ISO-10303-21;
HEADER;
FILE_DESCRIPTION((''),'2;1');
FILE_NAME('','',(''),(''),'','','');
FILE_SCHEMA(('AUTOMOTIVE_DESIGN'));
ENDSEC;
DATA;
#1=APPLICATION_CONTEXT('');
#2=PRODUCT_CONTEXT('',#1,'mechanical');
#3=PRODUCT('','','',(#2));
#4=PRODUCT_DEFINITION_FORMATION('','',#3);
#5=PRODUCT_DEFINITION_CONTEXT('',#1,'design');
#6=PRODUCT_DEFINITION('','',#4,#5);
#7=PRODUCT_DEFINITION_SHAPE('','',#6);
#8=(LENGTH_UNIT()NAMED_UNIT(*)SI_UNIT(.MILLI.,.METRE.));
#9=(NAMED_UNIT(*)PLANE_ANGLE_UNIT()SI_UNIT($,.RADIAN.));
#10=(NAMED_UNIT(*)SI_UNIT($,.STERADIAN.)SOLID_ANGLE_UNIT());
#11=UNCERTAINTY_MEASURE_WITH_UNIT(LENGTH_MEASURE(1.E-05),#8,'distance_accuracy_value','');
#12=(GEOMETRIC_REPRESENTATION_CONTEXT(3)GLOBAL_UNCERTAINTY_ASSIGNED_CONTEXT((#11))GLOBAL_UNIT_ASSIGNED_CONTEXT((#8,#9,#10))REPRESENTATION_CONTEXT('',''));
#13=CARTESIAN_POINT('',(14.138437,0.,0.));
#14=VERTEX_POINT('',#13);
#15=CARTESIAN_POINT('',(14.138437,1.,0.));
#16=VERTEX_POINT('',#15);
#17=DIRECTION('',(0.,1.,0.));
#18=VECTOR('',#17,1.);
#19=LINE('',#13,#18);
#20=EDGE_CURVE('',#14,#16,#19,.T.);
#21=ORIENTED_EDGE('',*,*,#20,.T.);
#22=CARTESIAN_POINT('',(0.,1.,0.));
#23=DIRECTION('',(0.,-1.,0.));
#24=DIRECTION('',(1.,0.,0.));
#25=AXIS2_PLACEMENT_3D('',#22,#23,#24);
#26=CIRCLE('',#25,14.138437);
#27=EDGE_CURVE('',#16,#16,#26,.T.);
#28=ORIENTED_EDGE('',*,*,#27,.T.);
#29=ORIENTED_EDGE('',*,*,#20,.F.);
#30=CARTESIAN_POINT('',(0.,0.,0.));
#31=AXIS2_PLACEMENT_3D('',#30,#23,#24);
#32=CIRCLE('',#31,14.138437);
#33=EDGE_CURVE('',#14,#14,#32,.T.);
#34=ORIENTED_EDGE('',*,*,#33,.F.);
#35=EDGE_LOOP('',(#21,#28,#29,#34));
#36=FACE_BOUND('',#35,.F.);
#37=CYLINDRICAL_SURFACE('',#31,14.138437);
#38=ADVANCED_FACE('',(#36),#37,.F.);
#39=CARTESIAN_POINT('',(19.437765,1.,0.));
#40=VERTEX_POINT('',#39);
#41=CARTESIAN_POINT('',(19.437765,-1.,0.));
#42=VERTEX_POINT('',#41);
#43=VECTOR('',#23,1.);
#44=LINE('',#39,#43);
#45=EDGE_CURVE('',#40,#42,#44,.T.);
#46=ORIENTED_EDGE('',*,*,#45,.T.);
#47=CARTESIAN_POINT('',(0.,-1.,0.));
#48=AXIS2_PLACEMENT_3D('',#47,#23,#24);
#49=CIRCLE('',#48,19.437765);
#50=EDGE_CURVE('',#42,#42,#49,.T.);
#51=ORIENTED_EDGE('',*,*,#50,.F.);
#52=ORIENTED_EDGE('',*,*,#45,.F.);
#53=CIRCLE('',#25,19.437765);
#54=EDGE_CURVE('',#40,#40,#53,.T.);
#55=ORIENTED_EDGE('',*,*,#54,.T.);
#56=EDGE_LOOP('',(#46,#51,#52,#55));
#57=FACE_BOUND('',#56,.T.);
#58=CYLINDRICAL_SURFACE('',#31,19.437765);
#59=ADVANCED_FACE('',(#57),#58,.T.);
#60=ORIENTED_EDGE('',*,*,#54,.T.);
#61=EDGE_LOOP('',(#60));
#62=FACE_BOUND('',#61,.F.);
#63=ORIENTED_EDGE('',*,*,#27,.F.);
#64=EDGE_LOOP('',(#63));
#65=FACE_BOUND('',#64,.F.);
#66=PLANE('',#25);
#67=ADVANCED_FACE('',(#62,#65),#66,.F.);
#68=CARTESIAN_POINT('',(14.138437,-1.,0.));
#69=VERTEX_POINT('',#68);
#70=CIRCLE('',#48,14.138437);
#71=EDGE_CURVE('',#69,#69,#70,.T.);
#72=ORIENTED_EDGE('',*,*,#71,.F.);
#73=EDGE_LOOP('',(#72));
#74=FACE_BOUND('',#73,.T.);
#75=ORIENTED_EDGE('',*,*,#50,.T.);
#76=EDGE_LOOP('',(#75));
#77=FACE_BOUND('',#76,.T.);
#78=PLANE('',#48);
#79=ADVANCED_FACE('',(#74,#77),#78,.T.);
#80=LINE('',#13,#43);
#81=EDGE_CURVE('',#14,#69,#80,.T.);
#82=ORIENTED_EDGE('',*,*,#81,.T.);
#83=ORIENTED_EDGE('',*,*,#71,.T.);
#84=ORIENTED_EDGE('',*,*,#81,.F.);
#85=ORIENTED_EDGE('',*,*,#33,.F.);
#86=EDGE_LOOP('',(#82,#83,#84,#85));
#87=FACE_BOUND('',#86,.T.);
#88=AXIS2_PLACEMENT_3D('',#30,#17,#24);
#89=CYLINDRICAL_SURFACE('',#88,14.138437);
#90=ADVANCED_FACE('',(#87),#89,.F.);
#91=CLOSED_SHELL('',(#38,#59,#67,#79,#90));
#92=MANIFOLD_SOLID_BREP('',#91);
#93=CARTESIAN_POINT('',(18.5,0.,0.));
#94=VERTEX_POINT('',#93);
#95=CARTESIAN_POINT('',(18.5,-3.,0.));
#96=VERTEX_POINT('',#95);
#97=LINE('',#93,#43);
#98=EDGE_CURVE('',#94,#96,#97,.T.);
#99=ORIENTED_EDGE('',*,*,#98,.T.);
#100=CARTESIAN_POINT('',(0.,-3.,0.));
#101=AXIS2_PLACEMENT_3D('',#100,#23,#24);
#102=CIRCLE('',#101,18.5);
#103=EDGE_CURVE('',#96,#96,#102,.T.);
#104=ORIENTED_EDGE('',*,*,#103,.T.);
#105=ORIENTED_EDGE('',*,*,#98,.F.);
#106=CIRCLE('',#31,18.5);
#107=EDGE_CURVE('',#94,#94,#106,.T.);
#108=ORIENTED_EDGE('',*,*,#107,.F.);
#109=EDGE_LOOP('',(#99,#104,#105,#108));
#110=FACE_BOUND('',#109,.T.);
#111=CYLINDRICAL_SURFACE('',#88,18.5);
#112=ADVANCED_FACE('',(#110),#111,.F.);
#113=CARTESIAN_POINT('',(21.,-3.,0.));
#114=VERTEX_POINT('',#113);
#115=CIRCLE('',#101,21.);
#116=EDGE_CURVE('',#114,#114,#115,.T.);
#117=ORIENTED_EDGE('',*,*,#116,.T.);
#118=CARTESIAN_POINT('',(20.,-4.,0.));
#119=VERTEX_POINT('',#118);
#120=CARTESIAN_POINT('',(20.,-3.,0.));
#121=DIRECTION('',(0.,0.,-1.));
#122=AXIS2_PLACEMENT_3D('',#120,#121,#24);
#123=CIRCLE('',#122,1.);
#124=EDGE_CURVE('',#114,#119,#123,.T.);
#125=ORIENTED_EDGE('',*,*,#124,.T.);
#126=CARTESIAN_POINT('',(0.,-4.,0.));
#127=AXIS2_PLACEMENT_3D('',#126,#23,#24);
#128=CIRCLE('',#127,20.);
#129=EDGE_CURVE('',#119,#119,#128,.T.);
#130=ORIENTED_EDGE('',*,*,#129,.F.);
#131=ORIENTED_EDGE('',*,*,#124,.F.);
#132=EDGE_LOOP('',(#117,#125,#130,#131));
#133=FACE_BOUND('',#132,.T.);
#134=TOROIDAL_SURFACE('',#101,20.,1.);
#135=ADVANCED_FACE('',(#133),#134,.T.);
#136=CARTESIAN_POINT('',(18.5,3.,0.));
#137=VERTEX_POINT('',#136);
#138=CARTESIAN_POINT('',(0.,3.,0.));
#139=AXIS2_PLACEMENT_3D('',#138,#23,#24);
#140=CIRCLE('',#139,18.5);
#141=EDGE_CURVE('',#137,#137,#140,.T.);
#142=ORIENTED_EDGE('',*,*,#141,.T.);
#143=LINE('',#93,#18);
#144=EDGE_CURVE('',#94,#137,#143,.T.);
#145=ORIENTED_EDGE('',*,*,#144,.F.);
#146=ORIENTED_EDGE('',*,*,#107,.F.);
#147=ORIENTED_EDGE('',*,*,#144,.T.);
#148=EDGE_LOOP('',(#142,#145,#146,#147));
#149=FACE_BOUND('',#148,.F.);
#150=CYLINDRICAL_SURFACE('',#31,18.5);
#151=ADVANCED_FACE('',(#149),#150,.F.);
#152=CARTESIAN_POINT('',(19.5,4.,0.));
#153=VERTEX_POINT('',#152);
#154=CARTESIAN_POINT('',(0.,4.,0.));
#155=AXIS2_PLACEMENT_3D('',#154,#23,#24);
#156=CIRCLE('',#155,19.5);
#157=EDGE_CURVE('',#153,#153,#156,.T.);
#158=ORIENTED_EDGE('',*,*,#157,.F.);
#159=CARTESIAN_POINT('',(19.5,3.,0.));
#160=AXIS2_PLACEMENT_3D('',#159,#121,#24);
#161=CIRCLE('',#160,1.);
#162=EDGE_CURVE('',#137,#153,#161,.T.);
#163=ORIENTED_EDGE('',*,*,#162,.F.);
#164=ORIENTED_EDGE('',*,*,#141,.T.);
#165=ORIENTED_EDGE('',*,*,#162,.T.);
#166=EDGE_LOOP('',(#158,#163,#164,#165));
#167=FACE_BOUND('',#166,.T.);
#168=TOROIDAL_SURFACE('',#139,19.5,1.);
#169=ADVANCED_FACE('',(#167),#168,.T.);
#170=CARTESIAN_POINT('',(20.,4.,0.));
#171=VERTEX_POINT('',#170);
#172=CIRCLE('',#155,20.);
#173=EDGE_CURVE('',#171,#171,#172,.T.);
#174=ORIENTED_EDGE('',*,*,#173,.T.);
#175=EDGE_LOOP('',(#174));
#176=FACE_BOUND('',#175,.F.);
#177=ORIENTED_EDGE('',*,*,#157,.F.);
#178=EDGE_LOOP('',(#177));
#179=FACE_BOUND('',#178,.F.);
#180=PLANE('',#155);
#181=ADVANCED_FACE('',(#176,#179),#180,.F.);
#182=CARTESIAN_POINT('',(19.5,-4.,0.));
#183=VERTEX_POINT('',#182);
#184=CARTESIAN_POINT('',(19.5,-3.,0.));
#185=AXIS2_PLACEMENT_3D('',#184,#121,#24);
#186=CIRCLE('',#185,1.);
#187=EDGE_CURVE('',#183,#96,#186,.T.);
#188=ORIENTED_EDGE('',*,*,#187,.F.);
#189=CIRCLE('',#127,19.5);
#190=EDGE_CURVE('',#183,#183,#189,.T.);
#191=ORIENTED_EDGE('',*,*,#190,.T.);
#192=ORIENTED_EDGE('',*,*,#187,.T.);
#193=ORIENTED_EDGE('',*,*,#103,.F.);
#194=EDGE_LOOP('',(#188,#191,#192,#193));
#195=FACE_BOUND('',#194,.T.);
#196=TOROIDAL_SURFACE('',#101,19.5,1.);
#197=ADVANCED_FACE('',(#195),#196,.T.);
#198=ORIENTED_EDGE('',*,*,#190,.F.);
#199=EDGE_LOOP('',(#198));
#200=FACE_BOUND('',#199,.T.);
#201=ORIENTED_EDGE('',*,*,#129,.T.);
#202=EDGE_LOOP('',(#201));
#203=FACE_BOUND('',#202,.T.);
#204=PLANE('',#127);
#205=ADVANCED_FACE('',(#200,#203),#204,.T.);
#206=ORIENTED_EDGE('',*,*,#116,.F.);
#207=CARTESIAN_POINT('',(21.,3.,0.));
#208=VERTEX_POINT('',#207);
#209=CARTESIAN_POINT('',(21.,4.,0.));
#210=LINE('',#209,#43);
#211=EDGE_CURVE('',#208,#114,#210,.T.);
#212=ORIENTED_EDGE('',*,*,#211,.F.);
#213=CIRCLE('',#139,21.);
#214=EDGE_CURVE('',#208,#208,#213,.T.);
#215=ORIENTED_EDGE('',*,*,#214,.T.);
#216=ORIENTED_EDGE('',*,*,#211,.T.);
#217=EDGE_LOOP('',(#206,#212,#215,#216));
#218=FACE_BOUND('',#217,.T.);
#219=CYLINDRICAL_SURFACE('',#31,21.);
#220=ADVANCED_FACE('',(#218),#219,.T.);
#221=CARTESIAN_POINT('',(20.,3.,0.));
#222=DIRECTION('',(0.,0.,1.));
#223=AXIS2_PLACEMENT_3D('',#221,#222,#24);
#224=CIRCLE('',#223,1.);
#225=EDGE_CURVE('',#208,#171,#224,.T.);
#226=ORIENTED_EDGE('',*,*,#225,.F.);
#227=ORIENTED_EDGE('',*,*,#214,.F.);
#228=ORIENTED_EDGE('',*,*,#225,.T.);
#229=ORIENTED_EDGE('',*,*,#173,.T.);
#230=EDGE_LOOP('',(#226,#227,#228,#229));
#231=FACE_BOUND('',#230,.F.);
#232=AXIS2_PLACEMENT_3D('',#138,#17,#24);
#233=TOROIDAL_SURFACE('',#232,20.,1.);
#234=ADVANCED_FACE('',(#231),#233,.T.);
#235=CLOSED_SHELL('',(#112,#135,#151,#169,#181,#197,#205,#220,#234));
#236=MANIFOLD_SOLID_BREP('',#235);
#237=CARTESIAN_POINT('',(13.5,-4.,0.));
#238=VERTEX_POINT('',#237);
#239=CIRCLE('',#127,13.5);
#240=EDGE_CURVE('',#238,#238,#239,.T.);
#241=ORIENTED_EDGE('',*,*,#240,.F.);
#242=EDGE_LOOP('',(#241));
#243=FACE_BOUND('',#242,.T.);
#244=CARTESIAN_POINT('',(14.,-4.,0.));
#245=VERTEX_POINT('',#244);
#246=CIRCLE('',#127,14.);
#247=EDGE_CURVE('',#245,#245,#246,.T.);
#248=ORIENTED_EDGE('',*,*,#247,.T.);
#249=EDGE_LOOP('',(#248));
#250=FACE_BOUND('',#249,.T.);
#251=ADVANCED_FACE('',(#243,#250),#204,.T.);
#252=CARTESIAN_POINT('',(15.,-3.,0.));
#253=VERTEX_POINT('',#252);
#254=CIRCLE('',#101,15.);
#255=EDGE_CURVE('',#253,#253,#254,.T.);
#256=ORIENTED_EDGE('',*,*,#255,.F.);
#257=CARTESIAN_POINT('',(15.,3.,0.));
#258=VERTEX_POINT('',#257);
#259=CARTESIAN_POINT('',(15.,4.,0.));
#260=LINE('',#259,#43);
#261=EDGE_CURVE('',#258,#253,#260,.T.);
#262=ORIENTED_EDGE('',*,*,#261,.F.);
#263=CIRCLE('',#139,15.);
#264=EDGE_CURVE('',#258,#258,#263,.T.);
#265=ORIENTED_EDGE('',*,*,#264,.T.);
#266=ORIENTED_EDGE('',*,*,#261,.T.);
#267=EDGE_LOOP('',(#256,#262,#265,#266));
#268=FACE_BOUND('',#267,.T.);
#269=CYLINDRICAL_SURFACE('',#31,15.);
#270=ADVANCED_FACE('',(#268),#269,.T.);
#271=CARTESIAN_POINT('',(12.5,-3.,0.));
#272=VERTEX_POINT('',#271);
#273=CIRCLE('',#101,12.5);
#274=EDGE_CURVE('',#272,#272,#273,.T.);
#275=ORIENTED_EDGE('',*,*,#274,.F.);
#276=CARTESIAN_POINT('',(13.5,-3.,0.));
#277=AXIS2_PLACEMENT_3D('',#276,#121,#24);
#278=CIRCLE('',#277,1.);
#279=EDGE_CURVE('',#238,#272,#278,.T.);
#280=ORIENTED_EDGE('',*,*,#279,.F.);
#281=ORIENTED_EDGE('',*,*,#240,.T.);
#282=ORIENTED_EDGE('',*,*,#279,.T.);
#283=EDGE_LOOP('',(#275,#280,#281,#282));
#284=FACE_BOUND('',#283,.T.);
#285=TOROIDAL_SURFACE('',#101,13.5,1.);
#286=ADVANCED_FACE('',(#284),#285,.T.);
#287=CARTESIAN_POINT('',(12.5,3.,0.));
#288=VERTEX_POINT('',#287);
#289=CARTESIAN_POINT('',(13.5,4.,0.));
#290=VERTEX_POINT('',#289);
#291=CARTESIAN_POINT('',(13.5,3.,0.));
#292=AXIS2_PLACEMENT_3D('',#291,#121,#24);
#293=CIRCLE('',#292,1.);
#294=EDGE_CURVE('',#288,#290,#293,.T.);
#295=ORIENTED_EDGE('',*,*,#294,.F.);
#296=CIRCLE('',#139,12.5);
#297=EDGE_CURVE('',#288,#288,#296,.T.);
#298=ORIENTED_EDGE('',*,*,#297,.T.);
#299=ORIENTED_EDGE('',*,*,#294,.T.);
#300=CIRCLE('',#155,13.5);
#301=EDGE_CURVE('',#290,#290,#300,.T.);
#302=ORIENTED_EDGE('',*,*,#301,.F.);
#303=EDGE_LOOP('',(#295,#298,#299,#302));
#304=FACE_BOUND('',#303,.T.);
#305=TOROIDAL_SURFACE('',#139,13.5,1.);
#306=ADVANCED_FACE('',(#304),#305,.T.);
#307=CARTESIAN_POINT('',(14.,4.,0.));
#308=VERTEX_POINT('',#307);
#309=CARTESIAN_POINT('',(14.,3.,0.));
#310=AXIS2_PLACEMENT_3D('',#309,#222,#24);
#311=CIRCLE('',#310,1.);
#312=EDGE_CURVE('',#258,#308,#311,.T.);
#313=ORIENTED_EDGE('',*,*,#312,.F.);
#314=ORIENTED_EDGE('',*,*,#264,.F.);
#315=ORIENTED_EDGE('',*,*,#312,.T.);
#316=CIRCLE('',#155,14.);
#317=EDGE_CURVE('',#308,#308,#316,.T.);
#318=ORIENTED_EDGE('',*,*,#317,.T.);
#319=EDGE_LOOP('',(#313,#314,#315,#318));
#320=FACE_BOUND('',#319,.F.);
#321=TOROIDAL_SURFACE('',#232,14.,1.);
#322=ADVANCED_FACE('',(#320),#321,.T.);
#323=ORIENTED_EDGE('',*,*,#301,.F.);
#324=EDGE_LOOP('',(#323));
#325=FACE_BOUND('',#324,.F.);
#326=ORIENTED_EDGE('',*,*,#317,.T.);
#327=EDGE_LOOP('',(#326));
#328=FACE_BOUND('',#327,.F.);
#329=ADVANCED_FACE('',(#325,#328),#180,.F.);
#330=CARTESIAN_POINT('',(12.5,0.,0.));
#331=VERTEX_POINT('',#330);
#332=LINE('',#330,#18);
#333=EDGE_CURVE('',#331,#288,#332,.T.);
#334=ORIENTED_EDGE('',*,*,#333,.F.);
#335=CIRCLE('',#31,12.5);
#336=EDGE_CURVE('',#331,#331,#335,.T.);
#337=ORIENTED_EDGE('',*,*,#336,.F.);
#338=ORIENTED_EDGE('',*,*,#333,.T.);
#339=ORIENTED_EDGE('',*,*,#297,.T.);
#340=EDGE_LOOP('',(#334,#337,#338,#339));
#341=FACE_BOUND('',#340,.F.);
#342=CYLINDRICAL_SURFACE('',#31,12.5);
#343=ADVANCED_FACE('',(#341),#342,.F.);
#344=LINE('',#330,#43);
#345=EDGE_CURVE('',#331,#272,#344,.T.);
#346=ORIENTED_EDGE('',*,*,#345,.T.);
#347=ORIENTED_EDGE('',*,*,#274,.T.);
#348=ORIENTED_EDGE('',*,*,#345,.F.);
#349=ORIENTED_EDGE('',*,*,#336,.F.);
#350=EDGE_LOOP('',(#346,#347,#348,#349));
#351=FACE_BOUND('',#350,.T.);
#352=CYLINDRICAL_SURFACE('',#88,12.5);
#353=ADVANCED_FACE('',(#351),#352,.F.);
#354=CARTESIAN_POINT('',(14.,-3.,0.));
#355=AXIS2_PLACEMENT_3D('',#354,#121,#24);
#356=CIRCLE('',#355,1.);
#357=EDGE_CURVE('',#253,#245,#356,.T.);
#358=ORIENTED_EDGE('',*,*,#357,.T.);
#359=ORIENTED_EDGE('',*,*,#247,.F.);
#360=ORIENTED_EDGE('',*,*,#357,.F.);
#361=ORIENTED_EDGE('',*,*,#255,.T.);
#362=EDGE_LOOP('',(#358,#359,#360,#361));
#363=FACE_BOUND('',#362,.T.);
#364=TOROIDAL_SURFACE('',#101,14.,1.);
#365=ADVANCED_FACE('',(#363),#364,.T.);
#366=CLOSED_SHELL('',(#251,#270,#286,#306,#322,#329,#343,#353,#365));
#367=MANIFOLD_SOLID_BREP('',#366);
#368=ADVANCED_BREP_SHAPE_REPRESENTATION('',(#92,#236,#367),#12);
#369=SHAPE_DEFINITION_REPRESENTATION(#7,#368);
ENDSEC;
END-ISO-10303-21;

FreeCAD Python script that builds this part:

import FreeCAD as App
import Part
import Sketcher
from FreeCAD import Vector


def edges_at(feature, points):
    """Names of the edges that pass closest to the given points."""
    edges = feature.Shape.Edges
    near = lambda p: min(range(len(edges)), key=lambda i: edges[i].distToShape(Part.Vertex(*p))[0])
    return sorted({f"Edge{near(p) + 1}" for p in points})

doc = App.newDocument("Part")
body = doc.addObject("PartDesign::Body", "Body")

# Sketch on XZ plane
sketch1 = body.newObject("Sketcher::SketchObject", "Sketch")
sketch1.AttachmentSupport = (doc.getObject("XZ_Plane"), [""])
sketch1.MapMode = "FlatFace"
sketch1.addGeometry([
    Part.Circle(Vector(0, 0, 0), Vector(0, 0, 1), 21),
    Part.Circle(Vector(0, 0, 0), Vector(0, 0, 1), 18),
], False)
sketch1.addConstraint([
    Sketcher.Constraint("Coincident", 0, 3, -1, 1),
    Sketcher.Constraint("Coincident", 1, 3, -1, 1),
    Sketcher.Constraint("Diameter", 0, 42.0),
    Sketcher.Constraint("Diameter", 1, 37.0),
])
pad1 = body.newObject("PartDesign::Pad", "Pad")
pad1.Profile = sketch1
pad1.Type = "TwoLengths"
pad1.Length = 4
pad1.Length2 = 4
doc.recompute()

fillet = body.newObject("PartDesign::Fillet", "Fillet")
fillet.Base = (pad1, edges_at(pad1, [
    (-21, -4, 0),
    (-21, 4, 0),
    (-18.5, 4, 0),
    (-18.5, -4, 0),
]))
fillet.Radius = 1
body2 = doc.addObject("PartDesign::Body", "Body001")

# Sketch on XZ plane
sketch2 = body2.newObject("Sketcher::SketchObject", "Sketch001")
sketch2.AttachmentSupport = (doc.getObject("XZ_Plane001"), [""])
sketch2.MapMode = "FlatFace"
sketch2.addGeometry([
    Part.Circle(Vector(0, 0, 0), Vector(0, 0, 1), 15),
    Part.Circle(Vector(0, 0, 0), Vector(0, 0, 1), 12),
], False)
sketch2.addConstraint([
    Sketcher.Constraint("Coincident", 0, 3, -1, 1),
    Sketcher.Constraint("Coincident", 1, 3, -1, 1),
    Sketcher.Constraint("Diameter", 0, 30.0),
    Sketcher.Constraint("Diameter", 1, 25.0),
])
pad2 = body2.newObject("PartDesign::Pad", "Pad001")
pad2.Profile = sketch2
pad2.Type = "TwoLengths"
pad2.Length = 4
pad2.Length2 = 4
doc.recompute()

fillet2 = body2.newObject("PartDesign::Fillet", "Fillet001")
fillet2.Base = (pad2, edges_at(pad2, [
    (-12.5, -4, 0),
    (-15, -4, 0),
    (-12.5, 4, 0),
    (-15, 4, 0),
]))
fillet2.Radius = 1
body3 = doc.addObject("PartDesign::Body", "Body002")

# Sketch on XZ plane
sketch3 = body3.newObject("Sketcher::SketchObject", "Sketch002")
sketch3.AttachmentSupport = (doc.getObject("XZ_Plane002"), [""])
sketch3.MapMode = "FlatFace"
sketch3.addGeometry([
    Part.Circle(Vector(0, 0, 0), Vector(0, 0, 1), 19),
    Part.Circle(Vector(0, 0, 0), Vector(0, 0, 1), 14),
], False)
sketch3.addConstraint([
    Sketcher.Constraint("Coincident", 0, 3, -1, 1),
    Sketcher.Constraint("Coincident", 1, 3, -1, 1),
    Sketcher.Constraint("Diameter", 0, 38.87553),
    Sketcher.Constraint("Diameter", 1, 28.276874),
])
pad3 = body3.newObject("PartDesign::Pad", "Pad002")
pad3.Profile = sketch3
pad3.Type = "TwoLengths"
pad3.Length = 1
pad3.Length2 = 1

doc.recompute()
